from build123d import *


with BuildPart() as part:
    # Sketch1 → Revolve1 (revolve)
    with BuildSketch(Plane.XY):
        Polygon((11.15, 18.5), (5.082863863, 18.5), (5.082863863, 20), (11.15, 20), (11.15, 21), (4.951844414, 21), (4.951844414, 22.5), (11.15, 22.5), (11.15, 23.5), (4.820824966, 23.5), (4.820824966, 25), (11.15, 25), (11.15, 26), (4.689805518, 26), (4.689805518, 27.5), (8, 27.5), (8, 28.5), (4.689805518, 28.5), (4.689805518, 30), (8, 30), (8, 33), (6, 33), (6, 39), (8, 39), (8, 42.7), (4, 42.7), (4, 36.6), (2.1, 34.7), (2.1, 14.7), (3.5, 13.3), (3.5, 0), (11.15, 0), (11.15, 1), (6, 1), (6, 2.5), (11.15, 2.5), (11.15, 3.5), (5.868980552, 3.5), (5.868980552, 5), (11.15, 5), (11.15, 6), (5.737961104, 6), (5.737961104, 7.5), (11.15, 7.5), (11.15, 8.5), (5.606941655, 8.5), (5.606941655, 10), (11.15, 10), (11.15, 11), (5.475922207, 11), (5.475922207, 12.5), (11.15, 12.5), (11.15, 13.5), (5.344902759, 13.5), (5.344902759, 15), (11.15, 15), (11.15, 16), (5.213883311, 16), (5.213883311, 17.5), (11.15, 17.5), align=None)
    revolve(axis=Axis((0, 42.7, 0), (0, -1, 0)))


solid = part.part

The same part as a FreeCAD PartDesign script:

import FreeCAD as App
import Part
import Sketcher
Q = App.Units.Quantity

doc = App.newDocument("Part")
body = doc.addObject("PartDesign::Body", "Body")

sketch1 = body.newObject("Sketcher::SketchObject", "Sketch")
sketch1.AttachmentSupport = (doc.getObject("XY_Plane"), [""])
sketch1.MapMode = "FlatFace"
sketch1.addGeometry(Part.LineSegment(App.Vector(11.15, 18.5, 0), App.Vector(5.082864, 18.5, 0)), False)
sketch1.addGeometry(Part.LineSegment(App.Vector(5.082864, 18.5, 0), App.Vector(5.082864, 20, 0)), False)
sketch1.addGeometry(Part.LineSegment(App.Vector(5.082864, 20, 0), App.Vector(11.15, 20, 0)), False)
sketch1.addGeometry(Part.LineSegment(App.Vector(11.15, 20, 0), App.Vector(11.15, 21, 0)), False)
sketch1.addGeometry(Part.LineSegment(App.Vector(11.15, 21, 0), App.Vector(4.951844, 21, 0)), False)
sketch1.addGeometry(Part.LineSegment(App.Vector(4.951844, 21, 0), App.Vector(4.951844, 22.5, 0)), False)
sketch1.addGeometry(Part.LineSegment(App.Vector(4.951844, 22.5, 0), App.Vector(11.15, 22.5, 0)), False)
sketch1.addGeometry(Part.LineSegment(App.Vector(11.15, 22.5, 0), App.Vector(11.15, 23.5, 0)), False)
sketch1.addGeometry(Part.LineSegment(App.Vector(11.15, 23.5, 0), App.Vector(4.820825, 23.5, 0)), False)
sketch1.addGeometry(Part.LineSegment(App.Vector(4.820825, 23.5, 0), App.Vector(4.820825, 25, 0)), False)
sketch1.addGeometry(Part.LineSegment(App.Vector(4.820825, 25, 0), App.Vector(11.15, 25, 0)), False)
sketch1.addGeometry(Part.LineSegment(App.Vector(11.15, 25, 0), App.Vector(11.15, 26, 0)), False)
sketch1.addGeometry(Part.LineSegment(App.Vector(11.15, 26, 0), App.Vector(4.689806, 26, 0)), False)
sketch1.addGeometry(Part.LineSegment(App.Vector(4.689806, 26, 0), App.Vector(4.689806, 27.5, 0)), False)
sketch1.addGeometry(Part.LineSegment(App.Vector(4.689806, 27.5, 0), App.Vector(8, 27.5, 0)), False)
sketch1.addGeometry(Part.LineSegment(App.Vector(8, 27.5, 0), App.Vector(8, 28.5, 0)), False)
sketch1.addGeometry(Part.LineSegment(App.Vector(8, 28.5, 0), App.Vector(4.689806, 28.5, 0)), False)
sketch1.addGeometry(Part.LineSegment(App.Vector(4.689806, 28.5, 0), App.Vector(4.689806, 30, 0)), False)
sketch1.addGeometry(Part.LineSegment(App.Vector(4.689806, 30, 0), App.Vector(8, 30, 0)), False)
sketch1.addGeometry(Part.LineSegment(App.Vector(8, 30, 0), App.Vector(8, 33, 0)), False)
sketch1.addGeometry(Part.LineSegment(App.Vector(8, 33, 0), App.Vector(6, 33, 0)), False)
sketch1.addGeometry(Part.LineSegment(App.Vector(6, 33, 0), App.Vector(6, 39, 0)), False)
sketch1.addGeometry(Part.LineSegment(App.Vector(6, 39, 0), App.Vector(8, 39, 0)), False)
sketch1.addGeometry(Part.LineSegment(App.Vector(8, 39, 0), App.Vector(8, 42.7, 0)), False)
sketch1.addGeometry(Part.LineSegment(App.Vector(8, 42.7, 0), App.Vector(4, 42.7, 0)), False)
sketch1.addGeometry(Part.LineSegment(App.Vector(4, 42.7, 0), App.Vector(4, 36.6, 0)), False)
sketch1.addGeometry(Part.LineSegment(App.Vector(4, 36.6, 0), App.Vector(2.1, 34.7, 0)), False)
sketch1.addGeometry(Part.LineSegment(App.Vector(2.1, 34.7, 0), App.Vector(2.1, 14.7, 0)), False)
sketch1.addGeometry(Part.LineSegment(App.Vector(2.1, 14.7, 0), App.Vector(3.5, 13.3, 0)), False)
sketch1.addGeometry(Part.LineSegment(App.Vector(3.5, 13.3, 0), App.Vector(3.5, 0, 0)), False)
sketch1.addGeometry(Part.LineSegment(App.Vector(3.5, 0, 0), App.Vector(11.15, 0, 0)), False)
sketch1.addGeometry(Part.LineSegment(App.Vector(11.15, 0, 0), App.Vector(11.15, 1, 0)), False)
sketch1.addGeometry(Part.LineSegment(App.Vector(11.15, 1, 0), App.Vector(6, 1, 0)), False)
sketch1.addGeometry(Part.LineSegment(App.Vector(6, 1, 0), App.Vector(6, 2.5, 0)), False)
sketch1.addGeometry(Part.LineSegment(App.Vector(6, 2.5, 0), App.Vector(11.15, 2.5, 0)), False)
sketch1.addGeometry(Part.LineSegment(App.Vector(11.15, 2.5, 0), App.Vector(11.15, 3.5, 0)), False)
sketch1.addGeometry(Part.LineSegment(App.Vector(11.15, 3.5, 0), App.Vector(5.868981, 3.5, 0)), False)
sketch1.addGeometry(Part.LineSegment(App.Vector(5.868981, 3.5, 0), App.Vector(5.868981, 5, 0)), False)
sketch1.addGeometry(Part.LineSegment(App.Vector(5.868981, 5, 0), App.Vector(11.15, 5, 0)), False)
sketch1.addGeometry(Part.LineSegment(App.Vector(11.15, 5, 0), App.Vector(11.15, 6, 0)), False)
sketch1.addGeometry(Part.LineSegment(App.Vector(11.15, 6, 0), App.Vector(5.737961, 6, 0)), False)
sketch1.addGeometry(Part.LineSegment(App.Vector(5.737961, 6, 0), App.Vector(5.737961, 7.5, 0)), False)
sketch1.addGeometry(Part.LineSegment(App.Vector(5.737961, 7.5, 0), App.Vector(11.15, 7.5, 0)), False)
sketch1.addGeometry(Part.LineSegment(App.Vector(11.15, 7.5, 0), App.Vector(11.15, 8.5, 0)), False)
sketch1.addGeometry(Part.LineSegment(App.Vector(11.15, 8.5, 0), App.Vector(5.606942, 8.5, 0)), False)
sketch1.addGeometry(Part.LineSegment(App.Vector(5.606942, 8.5, 0), App.Vector(5.606942, 10, 0)), False)
sketch1.addGeometry(Part.LineSegment(App.Vector(5.606942, 10, 0), App.Vector(11.15, 10, 0)), False)
sketch1.addGeometry(Part.LineSegment(App.Vector(11.15, 10, 0), App.Vector(11.15, 11, 0)), False)
sketch1.addGeometry(Part.LineSegment(App.Vector(11.15, 11, 0), App.Vector(5.475922, 11, 0)), False)
sketch1.addGeometry(Part.LineSegment(App.Vector(5.475922, 11, 0), App.Vector(5.475922, 12.5, 0)), False)
sketch1.addGeometry(Part.LineSegment(App.Vector(5.475922, 12.5, 0), App.Vector(11.15, 12.5, 0)), False)
sketch1.addGeometry(Part.LineSegment(App.Vector(11.15, 12.5, 0), App.Vector(11.15, 13.5, 0)), False)
sketch1.addGeometry(Part.LineSegment(App.Vector(11.15, 13.5, 0), App.Vector(5.344903, 13.5, 0)), False)
sketch1.addGeometry(Part.LineSegment(App.Vector(5.344903, 13.5, 0), App.Vector(5.344903, 15, 0)), False)
sketch1.addGeometry(Part.LineSegment(App.Vector(5.344903, 15, 0), App.Vector(11.15, 15, 0)), False)
sketch1.addGeometry(Part.LineSegment(App.Vector(11.15, 15, 0), App.Vector(11.15, 16, 0)), False)
sketch1.addGeometry(Part.LineSegment(App.Vector(11.15, 16, 0), App.Vector(5.213883, 16, 0)), False)
sketch1.addGeometry(Part.LineSegment(App.Vector(5.213883, 16, 0), App.Vector(5.213883, 17.5, 0)), False)
sketch1.addGeometry(Part.LineSegment(App.Vector(5.213883, 17.5, 0), App.Vector(11.15, 17.5, 0)), False)
sketch1.addGeometry(Part.LineSegment(App.Vector(11.15, 17.5, 0), App.Vector(11.15, 18.5, 0)), False)
sketch1.addConstraint(Sketcher.Constraint("Coincident", 0, 2, 1, 1))
sketch1.addConstraint(Sketcher.Constraint("Coincident", 1, 2, 2, 1))
sketch1.addConstraint(Sketcher.Constraint("Coincident", 2, 2, 3, 1))
sketch1.addConstraint(Sketcher.Constraint("Coincident", 3, 2, 4, 1))
sketch1.addConstraint(Sketcher.Constraint("Coincident", 4, 2, 5, 1))
sketch1.addConstraint(Sketcher.Constraint("Coincident", 5, 2, 6, 1))
sketch1.addConstraint(Sketcher.Constraint("Coincident", 6, 2, 7, 1))
sketch1.addConstraint(Sketcher.Constraint("Coincident", 7, 2, 8, 1))
sketch1.addConstraint(Sketcher.Constraint("Coincident", 8, 2, 9, 1))
sketch1.addConstraint(Sketcher.Constraint("Coincident", 9, 2, 10, 1))
sketch1.addConstraint(Sketcher.Constraint("Coincident", 10, 2, 11, 1))
sketch1.addConstraint(Sketcher.Constraint("Coincident", 11, 2, 12, 1))
sketch1.addConstraint(Sketcher.Constraint("Coincident", 12, 2, 13, 1))
sketch1.addConstraint(Sketcher.Constraint("Coincident", 13, 2, 14, 1))
sketch1.addConstraint(Sketcher.Constraint("Coincident", 14, 2, 15, 1))
sketch1.addConstraint(Sketcher.Constraint("Coincident", 15, 2, 16, 1))
sketch1.addConstraint(Sketcher.Constraint("Coincident", 16, 2, 17, 1))
sketch1.addConstraint(Sketcher.Constraint("Coincident", 17, 2, 18, 1))
sketch1.addConstraint(Sketcher.Constraint("Coincident", 18, 2, 19, 1))
sketch1.addConstraint(Sketcher.Constraint("Coincident", 19, 2, 20, 1))
sketch1.addConstraint(Sketcher.Constraint("Coincident", 20, 2, 21, 1))
sketch1.addConstraint(Sketcher.Constraint("Coincident", 21, 2, 22, 1))
sketch1.addConstraint(Sketcher.Constraint("Coincident", 22, 2, 23, 1))
sketch1.addConstraint(Sketcher.Constraint("Coincident", 23, 2, 24, 1))
sketch1.addConstraint(Sketcher.Constraint("Coincident", 24, 2, 25, 1))
sketch1.addConstraint(Sketcher.Constraint("Coincident", 25, 2, 26, 1))
sketch1.addConstraint(Sketcher.Constraint("Coincident", 26, 2, 27, 1))
sketch1.addConstraint(Sketcher.Constraint("Coincident", 27, 2, 28, 1))
sketch1.addConstraint(Sketcher.Constraint("Coincident", 28, 2, 29, 1))
sketch1.addConstraint(Sketcher.Constraint("Coincident", 29, 2, 30, 1))
sketch1.addConstraint(Sketcher.Constraint("Coincident", 30, 2, 31, 1))
sketch1.addConstraint(Sketcher.Constraint("Coincident", 31, 2, 32, 1))
sketch1.addConstraint(Sketcher.Constraint("Coincident", 32, 2, 33, 1))
sketch1.addConstraint(Sketcher.Constraint("Coincident", 33, 2, 34, 1))
sketch1.addConstraint(Sketcher.Constraint("Coincident", 34, 2, 35, 1))
sketch1.addConstraint(Sketcher.Constraint("Coincident", 35, 2, 36, 1))
sketch1.addConstraint(Sketcher.Constraint("Coincident", 36, 2, 37, 1))
sketch1.addConstraint(Sketcher.Constraint("Coincident", 37, 2, 38, 1))
sketch1.addConstraint(Sketcher.Constraint("Coincident", 38, 2, 39, 1))
sketch1.addConstraint(Sketcher.Constraint("Coincident", 39, 2, 40, 1))
sketch1.addConstraint(Sketcher.Constraint("Coincident", 40, 2, 41, 1))
sketch1.addConstraint(Sketcher.Constraint("Coincident", 41, 2, 42, 1))
sketch1.addConstraint(Sketcher.Constraint("Coincident", 42, 2, 43, 1))
sketch1.addConstraint(Sketcher.Constraint("Coincident", 43, 2, 44, 1))
sketch1.addConstraint(Sketcher.Constraint("Coincident", 44, 2, 45, 1))
sketch1.addConstraint(Sketcher.Constraint("Coincident", 45, 2, 46, 1))
sketch1.addConstraint(Sketcher.Constraint("Coincident", 46, 2, 47, 1))
sketch1.addConstraint(Sketcher.Constraint("Coincident", 47, 2, 48, 1))
sketch1.addConstraint(Sketcher.Constraint("Coincident", 48, 2, 49, 1))
sketch1.addConstraint(Sketcher.Constraint("Coincident", 49, 2, 50, 1))
sketch1.addConstraint(Sketcher.Constraint("Coincident", 50, 2, 51, 1))
sketch1.addConstraint(Sketcher.Constraint("Coincident", 51, 2, 52, 1))
sketch1.addConstraint(Sketcher.Constraint("Coincident", 52, 2, 53, 1))
sketch1.addConstraint(Sketcher.Constraint("Coincident", 53, 2, 54, 1))
sketch1.addConstraint(Sketcher.Constraint("Coincident", 54, 2, 55, 1))
sketch1.addConstraint(Sketcher.Constraint("Coincident", 55, 2, 56, 1))
sketch1.addConstraint(Sketcher.Constraint("Coincident", 56, 2, 57, 1))
sketch1.addConstraint(Sketcher.Constraint("Coincident", 57, 2, 58, 1))
sketch1.addConstraint(Sketcher.Constraint("Coincident", 58, 2, 59, 1))
sketch1.addConstraint(Sketcher.Constraint("Coincident", 59, 2, 0, 1))
sketch1.addConstraint(Sketcher.Constraint("Horizontal", 0))
sketch1.addConstraint(Sketcher.Constraint("Vertical", 1))
sketch1.addConstraint(Sketcher.Constraint("Horizontal", 2))
sketch1.addConstraint(Sketcher.Constraint("Vertical", 3))
sketch1.addConstraint(Sketcher.Constraint("Horizontal", 4))
sketch1.addConstraint(Sketcher.Constraint("Vertical", 5))
sketch1.addConstraint(Sketcher.Constraint("Horizontal", 6))
sketch1.addConstraint(Sketcher.Constraint("Vertical", 7))
sketch1.addConstraint(Sketcher.Constraint("Horizontal", 8))
sketch1.addConstraint(Sketcher.Constraint("Vertical", 9))
sketch1.addConstraint(Sketcher.Constraint("Horizontal", 10))
sketch1.addConstraint(Sketcher.Constraint("Vertical", 11))
sketch1.addConstraint(Sketcher.Constraint("Horizontal", 12))
sketch1.addConstraint(Sketcher.Constraint("Vertical", 13))
sketch1.addConstraint(Sketcher.Constraint("Horizontal", 14))
sketch1.addConstraint(Sketcher.Constraint("Vertical", 15))
sketch1.addConstraint(Sketcher.Constraint("Horizontal", 16))
sketch1.addConstraint(Sketcher.Constraint("Vertical", 17))
sketch1.addConstraint(Sketcher.Constraint("Horizontal", 18))
sketch1.addConstraint(Sketcher.Constraint("Vertical", 19))
sketch1.addConstraint(Sketcher.Constraint("Horizontal", 20))
sketch1.addConstraint(Sketcher.Constraint("Vertical", 21))
sketch1.addConstraint(Sketcher.Constraint("Horizontal", 22))
sketch1.addConstraint(Sketcher.Constraint("Vertical", 23))
sketch1.addConstraint(Sketcher.Constraint("Horizontal", 24))
sketch1.addConstraint(Sketcher.Constraint("Vertical", 25))
sketch1.addConstraint(Sketcher.Constraint("Vertical", 27))
sketch1.addConstraint(Sketcher.Constraint("Vertical", 29))
sketch1.addConstraint(Sketcher.Constraint("Horizontal", 30))
sketch1.addConstraint(Sketcher.Constraint("Vertical", 31))
sketch1.addConstraint(Sketcher.Constraint("Horizontal", 32))
sketch1.addConstraint(Sketcher.Constraint("Vertical", 33))
sketch1.addConstraint(Sketcher.Constraint("Horizontal", 34))
sketch1.addConstraint(Sketcher.Constraint("Vertical", 35))
sketch1.addConstraint(Sketcher.Constraint("Horizontal", 36))
sketch1.addConstraint(Sketcher.Constraint("Vertical", 37))
sketch1.addConstraint(Sketcher.Constraint("Horizontal", 38))
sketch1.addConstraint(Sketcher.Constraint("Vertical", 39))
sketch1.addConstraint(Sketcher.Constraint("Horizontal", 40))
sketch1.addConstraint(Sketcher.Constraint("Vertical", 41))
sketch1.addConstraint(Sketcher.Constraint("Horizontal", 42))
sketch1.addConstraint(Sketcher.Constraint("Vertical", 43))
sketch1.addConstraint(Sketcher.Constraint("Horizontal", 44))
sketch1.addConstraint(Sketcher.Constraint("Vertical", 45))
sketch1.addConstraint(Sketcher.Constraint("Horizontal", 46))
sketch1.addConstraint(Sketcher.Constraint("Vertical", 47))
sketch1.addConstraint(Sketcher.Constraint("Horizontal", 48))
sketch1.addConstraint(Sketcher.Constraint("Vertical", 49))
sketch1.addConstraint(Sketcher.Constraint("Horizontal", 50))
sketch1.addConstraint(Sketcher.Constraint("Vertical", 51))
sketch1.addConstraint(Sketcher.Constraint("Horizontal", 52))
sketch1.addConstraint(Sketcher.Constraint("Vertical", 53))
sketch1.addConstraint(Sketcher.Constraint("Horizontal", 54))
sketch1.addConstraint(Sketcher.Constraint("Vertical", 55))
sketch1.addConstraint(Sketcher.Constraint("Horizontal", 56))
sketch1.addConstraint(Sketcher.Constraint("Vertical", 57))
sketch1.addConstraint(Sketcher.Constraint("Horizontal", 58))
sketch1.addConstraint(Sketcher.Constraint("Vertical", 59))
sketch1.addConstraint(Sketcher.Constraint("PointOnObject", 29, 2, -1))
sketch1.addConstraint(Sketcher.Constraint("Perpendicular", 26, 28))
sketch1.addConstraint(Sketcher.Constraint("Vertical", 3, 2, 6, 2))
sketch1.addConstraint(Sketcher.Constraint("Vertical", 7, 2, 10, 2))
sketch1.addConstraint(Sketcher.Constraint("Vertical", 13, 2, 16, 2))
sketch1.addConstraint(Sketcher.Constraint("Vertical", 15, 2, 18, 2))
sketch1.addConstraint(Sketcher.Constraint("Vertical", 19, 2, 22, 2))
sketch1.addConstraint(Sketcher.Constraint("Vertical", 11, 2, 30, 2))
sketch1.addConstraint(Sketcher.Constraint("Vertical", 21, 2, 32, 2))
sketch1.addConstraint(Sketcher.Constraint("Vertical", 31, 2, 34, 2))
sketch1.addConstraint(Sketcher.Constraint("Vertical", 35, 2, 38, 2))
sketch1.addConstraint(Sketcher.Constraint("Vertical", 39, 2, 42, 2))
sketch1.addConstraint(Sketcher.Constraint("Vertical", 43, 2, 46, 2))
sketch1.addConstraint(Sketcher.Constraint("Vertical", 47, 2, 50, 2))
sketch1.addConstraint(Sketcher.Constraint("Vertical", 51, 2, 54, 2))
sketch1.addConstraint(Sketcher.Constraint("Vertical", 55, 2, 58, 2))
sketch1.addConstraint(Sketcher.Constraint("Equal", 1, 5))
sketch1.addConstraint(Sketcher.Constraint("Equal", 3, 7))
sketch1.addConstraint(Sketcher.Constraint("Equal", 5, 9))
sketch1.addConstraint(Sketcher.Constraint("Equal", 7, 11))
sketch1.addConstraint(Sketcher.Constraint("Equal", 9, 13))
sketch1.addConstraint(Sketcher.Constraint("Equal", 11, 15))
sketch1.addConstraint(Sketcher.Constraint("Equal", 13, 17))
sketch1.addConstraint(Sketcher.Constraint("Equal", 15, 31))
sketch1.addConstraint(Sketcher.Constraint("Equal", 17, 33))
sketch1.addConstraint(Sketcher.Constraint("Equal", 31, 35))
sketch1.addConstraint(Sketcher.Constraint("Equal", 33, 37))
sketch1.addConstraint(Sketcher.Constraint("Equal", 35, 39))
sketch1.addConstraint(Sketcher.Constraint("Equal", 37, 41))
sketch1.addConstraint(Sketcher.Constraint("Equal", 39, 43))
sketch1.addConstraint(Sketcher.Constraint("Equal", 41, 45))
sketch1.addConstraint(Sketcher.Constraint("Equal", 43, 47))
sketch1.addConstraint(Sketcher.Constraint("Equal", 45, 49))
sketch1.addConstraint(Sketcher.Constraint("Equal", 47, 51))
sketch1.addConstraint(Sketcher.Constraint("Equal", 49, 53))
sketch1.addConstraint(Sketcher.Constraint("Equal", 51, 55))
sketch1.addConstraint(Sketcher.Constraint("Equal", 53, 57))
sketch1.addConstraint(Sketcher.Constraint("Equal", 55, 59))
sketch1.addConstraint(Sketcher.Constraint("DistanceX", 20, 2, 20, 1, 2.0))
sketch1.addConstraint(Sketcher.Constraint("DistanceX", 24, 2, 24, 1, 4.0))
sketch1.addConstraint(Sketcher.Constraint("DistanceY", 3, 1, 3, 2, 1.0))
sketch1.addConstraint(Sketcher.Constraint("DistanceY", 19, 1, 19, 2, 3.0))
sketch1.addConstraint(Sketcher.Constraint("DistanceY", 21, 1, 21, 2, 6.0))
sketch1.addConstraint(Sketcher.Constraint("DistanceY", 27, 2, 27, 1, 20.0))
sketch1.addConstraint(Sketcher.Constraint("Angle", 26, Q("-135 deg")))
sketch1.addConstraint(Sketcher.Constraint("DistanceY", 1, 1, 1, 2, 1.5))
sketch1.addConstraint(Sketcher.Constraint("DistanceY", 23, 1, 23, 2, 3.7))
sketch1.addConstraint(Sketcher.Constraint("DistanceY", 25, 2, 25, 1, 6.1))
sketch1.addConstraint(Sketcher.Constraint("DistanceY", 29, 2, 29, 1, 13.3))
sketch1.addConstraint(Sketcher.Constraint("DistanceX", -1, 1, 14, 2, 8.0))
sketch1.addConstraint(Sketcher.Constraint("DistanceX", 30, 1, 30, 2, 7.65))
sketch1.addConstraint(Sketcher.Constraint("DistanceX", 32, 2, 32, 1, 5.15))
sketch1.addConstraint(Sketcher.Constraint("DistanceX", 36, 2, 36, 1, 5.281019))
sketch1.addConstraint(Sketcher.Constraint("DistanceX", 40, 2, 40, 1, 5.412039))
sketch1.addConstraint(Sketcher.Constraint("DistanceX", 44, 2, 44, 1, 5.543058))
sketch1.addConstraint(Sketcher.Constraint("DistanceX", 0, 2, 0, 1, 6.067136))
sketch1.addConstraint(Sketcher.Constraint("DistanceX", 4, 2, 4, 1, 6.198156))
sketch1.addConstraint(Sketcher.Constraint("DistanceX", 8, 2, 8, 1, 6.329175))
sketch1.addConstraint(Sketcher.Constraint("DistanceX", 12, 2, 12, 1, 6.460194))
sketch1.addConstraint(Sketcher.Constraint("DistanceX", 48, 2, 48, 1, 5.674078))
sketch1.addConstraint(Sketcher.Constraint("DistanceX", 52, 2, 52, 1, 5.805097))
sketch1.addConstraint(Sketcher.Constraint("DistanceX", 56, 2, 56, 1, 5.936117))
revolution = body.newObject("PartDesign::Revolution", "Revolution")
revolution.Profile = sketch1
revolution.ReferenceAxis = (sketch1, ["V_Axis"])
revolution.Angle = 360

doc.recompute()
